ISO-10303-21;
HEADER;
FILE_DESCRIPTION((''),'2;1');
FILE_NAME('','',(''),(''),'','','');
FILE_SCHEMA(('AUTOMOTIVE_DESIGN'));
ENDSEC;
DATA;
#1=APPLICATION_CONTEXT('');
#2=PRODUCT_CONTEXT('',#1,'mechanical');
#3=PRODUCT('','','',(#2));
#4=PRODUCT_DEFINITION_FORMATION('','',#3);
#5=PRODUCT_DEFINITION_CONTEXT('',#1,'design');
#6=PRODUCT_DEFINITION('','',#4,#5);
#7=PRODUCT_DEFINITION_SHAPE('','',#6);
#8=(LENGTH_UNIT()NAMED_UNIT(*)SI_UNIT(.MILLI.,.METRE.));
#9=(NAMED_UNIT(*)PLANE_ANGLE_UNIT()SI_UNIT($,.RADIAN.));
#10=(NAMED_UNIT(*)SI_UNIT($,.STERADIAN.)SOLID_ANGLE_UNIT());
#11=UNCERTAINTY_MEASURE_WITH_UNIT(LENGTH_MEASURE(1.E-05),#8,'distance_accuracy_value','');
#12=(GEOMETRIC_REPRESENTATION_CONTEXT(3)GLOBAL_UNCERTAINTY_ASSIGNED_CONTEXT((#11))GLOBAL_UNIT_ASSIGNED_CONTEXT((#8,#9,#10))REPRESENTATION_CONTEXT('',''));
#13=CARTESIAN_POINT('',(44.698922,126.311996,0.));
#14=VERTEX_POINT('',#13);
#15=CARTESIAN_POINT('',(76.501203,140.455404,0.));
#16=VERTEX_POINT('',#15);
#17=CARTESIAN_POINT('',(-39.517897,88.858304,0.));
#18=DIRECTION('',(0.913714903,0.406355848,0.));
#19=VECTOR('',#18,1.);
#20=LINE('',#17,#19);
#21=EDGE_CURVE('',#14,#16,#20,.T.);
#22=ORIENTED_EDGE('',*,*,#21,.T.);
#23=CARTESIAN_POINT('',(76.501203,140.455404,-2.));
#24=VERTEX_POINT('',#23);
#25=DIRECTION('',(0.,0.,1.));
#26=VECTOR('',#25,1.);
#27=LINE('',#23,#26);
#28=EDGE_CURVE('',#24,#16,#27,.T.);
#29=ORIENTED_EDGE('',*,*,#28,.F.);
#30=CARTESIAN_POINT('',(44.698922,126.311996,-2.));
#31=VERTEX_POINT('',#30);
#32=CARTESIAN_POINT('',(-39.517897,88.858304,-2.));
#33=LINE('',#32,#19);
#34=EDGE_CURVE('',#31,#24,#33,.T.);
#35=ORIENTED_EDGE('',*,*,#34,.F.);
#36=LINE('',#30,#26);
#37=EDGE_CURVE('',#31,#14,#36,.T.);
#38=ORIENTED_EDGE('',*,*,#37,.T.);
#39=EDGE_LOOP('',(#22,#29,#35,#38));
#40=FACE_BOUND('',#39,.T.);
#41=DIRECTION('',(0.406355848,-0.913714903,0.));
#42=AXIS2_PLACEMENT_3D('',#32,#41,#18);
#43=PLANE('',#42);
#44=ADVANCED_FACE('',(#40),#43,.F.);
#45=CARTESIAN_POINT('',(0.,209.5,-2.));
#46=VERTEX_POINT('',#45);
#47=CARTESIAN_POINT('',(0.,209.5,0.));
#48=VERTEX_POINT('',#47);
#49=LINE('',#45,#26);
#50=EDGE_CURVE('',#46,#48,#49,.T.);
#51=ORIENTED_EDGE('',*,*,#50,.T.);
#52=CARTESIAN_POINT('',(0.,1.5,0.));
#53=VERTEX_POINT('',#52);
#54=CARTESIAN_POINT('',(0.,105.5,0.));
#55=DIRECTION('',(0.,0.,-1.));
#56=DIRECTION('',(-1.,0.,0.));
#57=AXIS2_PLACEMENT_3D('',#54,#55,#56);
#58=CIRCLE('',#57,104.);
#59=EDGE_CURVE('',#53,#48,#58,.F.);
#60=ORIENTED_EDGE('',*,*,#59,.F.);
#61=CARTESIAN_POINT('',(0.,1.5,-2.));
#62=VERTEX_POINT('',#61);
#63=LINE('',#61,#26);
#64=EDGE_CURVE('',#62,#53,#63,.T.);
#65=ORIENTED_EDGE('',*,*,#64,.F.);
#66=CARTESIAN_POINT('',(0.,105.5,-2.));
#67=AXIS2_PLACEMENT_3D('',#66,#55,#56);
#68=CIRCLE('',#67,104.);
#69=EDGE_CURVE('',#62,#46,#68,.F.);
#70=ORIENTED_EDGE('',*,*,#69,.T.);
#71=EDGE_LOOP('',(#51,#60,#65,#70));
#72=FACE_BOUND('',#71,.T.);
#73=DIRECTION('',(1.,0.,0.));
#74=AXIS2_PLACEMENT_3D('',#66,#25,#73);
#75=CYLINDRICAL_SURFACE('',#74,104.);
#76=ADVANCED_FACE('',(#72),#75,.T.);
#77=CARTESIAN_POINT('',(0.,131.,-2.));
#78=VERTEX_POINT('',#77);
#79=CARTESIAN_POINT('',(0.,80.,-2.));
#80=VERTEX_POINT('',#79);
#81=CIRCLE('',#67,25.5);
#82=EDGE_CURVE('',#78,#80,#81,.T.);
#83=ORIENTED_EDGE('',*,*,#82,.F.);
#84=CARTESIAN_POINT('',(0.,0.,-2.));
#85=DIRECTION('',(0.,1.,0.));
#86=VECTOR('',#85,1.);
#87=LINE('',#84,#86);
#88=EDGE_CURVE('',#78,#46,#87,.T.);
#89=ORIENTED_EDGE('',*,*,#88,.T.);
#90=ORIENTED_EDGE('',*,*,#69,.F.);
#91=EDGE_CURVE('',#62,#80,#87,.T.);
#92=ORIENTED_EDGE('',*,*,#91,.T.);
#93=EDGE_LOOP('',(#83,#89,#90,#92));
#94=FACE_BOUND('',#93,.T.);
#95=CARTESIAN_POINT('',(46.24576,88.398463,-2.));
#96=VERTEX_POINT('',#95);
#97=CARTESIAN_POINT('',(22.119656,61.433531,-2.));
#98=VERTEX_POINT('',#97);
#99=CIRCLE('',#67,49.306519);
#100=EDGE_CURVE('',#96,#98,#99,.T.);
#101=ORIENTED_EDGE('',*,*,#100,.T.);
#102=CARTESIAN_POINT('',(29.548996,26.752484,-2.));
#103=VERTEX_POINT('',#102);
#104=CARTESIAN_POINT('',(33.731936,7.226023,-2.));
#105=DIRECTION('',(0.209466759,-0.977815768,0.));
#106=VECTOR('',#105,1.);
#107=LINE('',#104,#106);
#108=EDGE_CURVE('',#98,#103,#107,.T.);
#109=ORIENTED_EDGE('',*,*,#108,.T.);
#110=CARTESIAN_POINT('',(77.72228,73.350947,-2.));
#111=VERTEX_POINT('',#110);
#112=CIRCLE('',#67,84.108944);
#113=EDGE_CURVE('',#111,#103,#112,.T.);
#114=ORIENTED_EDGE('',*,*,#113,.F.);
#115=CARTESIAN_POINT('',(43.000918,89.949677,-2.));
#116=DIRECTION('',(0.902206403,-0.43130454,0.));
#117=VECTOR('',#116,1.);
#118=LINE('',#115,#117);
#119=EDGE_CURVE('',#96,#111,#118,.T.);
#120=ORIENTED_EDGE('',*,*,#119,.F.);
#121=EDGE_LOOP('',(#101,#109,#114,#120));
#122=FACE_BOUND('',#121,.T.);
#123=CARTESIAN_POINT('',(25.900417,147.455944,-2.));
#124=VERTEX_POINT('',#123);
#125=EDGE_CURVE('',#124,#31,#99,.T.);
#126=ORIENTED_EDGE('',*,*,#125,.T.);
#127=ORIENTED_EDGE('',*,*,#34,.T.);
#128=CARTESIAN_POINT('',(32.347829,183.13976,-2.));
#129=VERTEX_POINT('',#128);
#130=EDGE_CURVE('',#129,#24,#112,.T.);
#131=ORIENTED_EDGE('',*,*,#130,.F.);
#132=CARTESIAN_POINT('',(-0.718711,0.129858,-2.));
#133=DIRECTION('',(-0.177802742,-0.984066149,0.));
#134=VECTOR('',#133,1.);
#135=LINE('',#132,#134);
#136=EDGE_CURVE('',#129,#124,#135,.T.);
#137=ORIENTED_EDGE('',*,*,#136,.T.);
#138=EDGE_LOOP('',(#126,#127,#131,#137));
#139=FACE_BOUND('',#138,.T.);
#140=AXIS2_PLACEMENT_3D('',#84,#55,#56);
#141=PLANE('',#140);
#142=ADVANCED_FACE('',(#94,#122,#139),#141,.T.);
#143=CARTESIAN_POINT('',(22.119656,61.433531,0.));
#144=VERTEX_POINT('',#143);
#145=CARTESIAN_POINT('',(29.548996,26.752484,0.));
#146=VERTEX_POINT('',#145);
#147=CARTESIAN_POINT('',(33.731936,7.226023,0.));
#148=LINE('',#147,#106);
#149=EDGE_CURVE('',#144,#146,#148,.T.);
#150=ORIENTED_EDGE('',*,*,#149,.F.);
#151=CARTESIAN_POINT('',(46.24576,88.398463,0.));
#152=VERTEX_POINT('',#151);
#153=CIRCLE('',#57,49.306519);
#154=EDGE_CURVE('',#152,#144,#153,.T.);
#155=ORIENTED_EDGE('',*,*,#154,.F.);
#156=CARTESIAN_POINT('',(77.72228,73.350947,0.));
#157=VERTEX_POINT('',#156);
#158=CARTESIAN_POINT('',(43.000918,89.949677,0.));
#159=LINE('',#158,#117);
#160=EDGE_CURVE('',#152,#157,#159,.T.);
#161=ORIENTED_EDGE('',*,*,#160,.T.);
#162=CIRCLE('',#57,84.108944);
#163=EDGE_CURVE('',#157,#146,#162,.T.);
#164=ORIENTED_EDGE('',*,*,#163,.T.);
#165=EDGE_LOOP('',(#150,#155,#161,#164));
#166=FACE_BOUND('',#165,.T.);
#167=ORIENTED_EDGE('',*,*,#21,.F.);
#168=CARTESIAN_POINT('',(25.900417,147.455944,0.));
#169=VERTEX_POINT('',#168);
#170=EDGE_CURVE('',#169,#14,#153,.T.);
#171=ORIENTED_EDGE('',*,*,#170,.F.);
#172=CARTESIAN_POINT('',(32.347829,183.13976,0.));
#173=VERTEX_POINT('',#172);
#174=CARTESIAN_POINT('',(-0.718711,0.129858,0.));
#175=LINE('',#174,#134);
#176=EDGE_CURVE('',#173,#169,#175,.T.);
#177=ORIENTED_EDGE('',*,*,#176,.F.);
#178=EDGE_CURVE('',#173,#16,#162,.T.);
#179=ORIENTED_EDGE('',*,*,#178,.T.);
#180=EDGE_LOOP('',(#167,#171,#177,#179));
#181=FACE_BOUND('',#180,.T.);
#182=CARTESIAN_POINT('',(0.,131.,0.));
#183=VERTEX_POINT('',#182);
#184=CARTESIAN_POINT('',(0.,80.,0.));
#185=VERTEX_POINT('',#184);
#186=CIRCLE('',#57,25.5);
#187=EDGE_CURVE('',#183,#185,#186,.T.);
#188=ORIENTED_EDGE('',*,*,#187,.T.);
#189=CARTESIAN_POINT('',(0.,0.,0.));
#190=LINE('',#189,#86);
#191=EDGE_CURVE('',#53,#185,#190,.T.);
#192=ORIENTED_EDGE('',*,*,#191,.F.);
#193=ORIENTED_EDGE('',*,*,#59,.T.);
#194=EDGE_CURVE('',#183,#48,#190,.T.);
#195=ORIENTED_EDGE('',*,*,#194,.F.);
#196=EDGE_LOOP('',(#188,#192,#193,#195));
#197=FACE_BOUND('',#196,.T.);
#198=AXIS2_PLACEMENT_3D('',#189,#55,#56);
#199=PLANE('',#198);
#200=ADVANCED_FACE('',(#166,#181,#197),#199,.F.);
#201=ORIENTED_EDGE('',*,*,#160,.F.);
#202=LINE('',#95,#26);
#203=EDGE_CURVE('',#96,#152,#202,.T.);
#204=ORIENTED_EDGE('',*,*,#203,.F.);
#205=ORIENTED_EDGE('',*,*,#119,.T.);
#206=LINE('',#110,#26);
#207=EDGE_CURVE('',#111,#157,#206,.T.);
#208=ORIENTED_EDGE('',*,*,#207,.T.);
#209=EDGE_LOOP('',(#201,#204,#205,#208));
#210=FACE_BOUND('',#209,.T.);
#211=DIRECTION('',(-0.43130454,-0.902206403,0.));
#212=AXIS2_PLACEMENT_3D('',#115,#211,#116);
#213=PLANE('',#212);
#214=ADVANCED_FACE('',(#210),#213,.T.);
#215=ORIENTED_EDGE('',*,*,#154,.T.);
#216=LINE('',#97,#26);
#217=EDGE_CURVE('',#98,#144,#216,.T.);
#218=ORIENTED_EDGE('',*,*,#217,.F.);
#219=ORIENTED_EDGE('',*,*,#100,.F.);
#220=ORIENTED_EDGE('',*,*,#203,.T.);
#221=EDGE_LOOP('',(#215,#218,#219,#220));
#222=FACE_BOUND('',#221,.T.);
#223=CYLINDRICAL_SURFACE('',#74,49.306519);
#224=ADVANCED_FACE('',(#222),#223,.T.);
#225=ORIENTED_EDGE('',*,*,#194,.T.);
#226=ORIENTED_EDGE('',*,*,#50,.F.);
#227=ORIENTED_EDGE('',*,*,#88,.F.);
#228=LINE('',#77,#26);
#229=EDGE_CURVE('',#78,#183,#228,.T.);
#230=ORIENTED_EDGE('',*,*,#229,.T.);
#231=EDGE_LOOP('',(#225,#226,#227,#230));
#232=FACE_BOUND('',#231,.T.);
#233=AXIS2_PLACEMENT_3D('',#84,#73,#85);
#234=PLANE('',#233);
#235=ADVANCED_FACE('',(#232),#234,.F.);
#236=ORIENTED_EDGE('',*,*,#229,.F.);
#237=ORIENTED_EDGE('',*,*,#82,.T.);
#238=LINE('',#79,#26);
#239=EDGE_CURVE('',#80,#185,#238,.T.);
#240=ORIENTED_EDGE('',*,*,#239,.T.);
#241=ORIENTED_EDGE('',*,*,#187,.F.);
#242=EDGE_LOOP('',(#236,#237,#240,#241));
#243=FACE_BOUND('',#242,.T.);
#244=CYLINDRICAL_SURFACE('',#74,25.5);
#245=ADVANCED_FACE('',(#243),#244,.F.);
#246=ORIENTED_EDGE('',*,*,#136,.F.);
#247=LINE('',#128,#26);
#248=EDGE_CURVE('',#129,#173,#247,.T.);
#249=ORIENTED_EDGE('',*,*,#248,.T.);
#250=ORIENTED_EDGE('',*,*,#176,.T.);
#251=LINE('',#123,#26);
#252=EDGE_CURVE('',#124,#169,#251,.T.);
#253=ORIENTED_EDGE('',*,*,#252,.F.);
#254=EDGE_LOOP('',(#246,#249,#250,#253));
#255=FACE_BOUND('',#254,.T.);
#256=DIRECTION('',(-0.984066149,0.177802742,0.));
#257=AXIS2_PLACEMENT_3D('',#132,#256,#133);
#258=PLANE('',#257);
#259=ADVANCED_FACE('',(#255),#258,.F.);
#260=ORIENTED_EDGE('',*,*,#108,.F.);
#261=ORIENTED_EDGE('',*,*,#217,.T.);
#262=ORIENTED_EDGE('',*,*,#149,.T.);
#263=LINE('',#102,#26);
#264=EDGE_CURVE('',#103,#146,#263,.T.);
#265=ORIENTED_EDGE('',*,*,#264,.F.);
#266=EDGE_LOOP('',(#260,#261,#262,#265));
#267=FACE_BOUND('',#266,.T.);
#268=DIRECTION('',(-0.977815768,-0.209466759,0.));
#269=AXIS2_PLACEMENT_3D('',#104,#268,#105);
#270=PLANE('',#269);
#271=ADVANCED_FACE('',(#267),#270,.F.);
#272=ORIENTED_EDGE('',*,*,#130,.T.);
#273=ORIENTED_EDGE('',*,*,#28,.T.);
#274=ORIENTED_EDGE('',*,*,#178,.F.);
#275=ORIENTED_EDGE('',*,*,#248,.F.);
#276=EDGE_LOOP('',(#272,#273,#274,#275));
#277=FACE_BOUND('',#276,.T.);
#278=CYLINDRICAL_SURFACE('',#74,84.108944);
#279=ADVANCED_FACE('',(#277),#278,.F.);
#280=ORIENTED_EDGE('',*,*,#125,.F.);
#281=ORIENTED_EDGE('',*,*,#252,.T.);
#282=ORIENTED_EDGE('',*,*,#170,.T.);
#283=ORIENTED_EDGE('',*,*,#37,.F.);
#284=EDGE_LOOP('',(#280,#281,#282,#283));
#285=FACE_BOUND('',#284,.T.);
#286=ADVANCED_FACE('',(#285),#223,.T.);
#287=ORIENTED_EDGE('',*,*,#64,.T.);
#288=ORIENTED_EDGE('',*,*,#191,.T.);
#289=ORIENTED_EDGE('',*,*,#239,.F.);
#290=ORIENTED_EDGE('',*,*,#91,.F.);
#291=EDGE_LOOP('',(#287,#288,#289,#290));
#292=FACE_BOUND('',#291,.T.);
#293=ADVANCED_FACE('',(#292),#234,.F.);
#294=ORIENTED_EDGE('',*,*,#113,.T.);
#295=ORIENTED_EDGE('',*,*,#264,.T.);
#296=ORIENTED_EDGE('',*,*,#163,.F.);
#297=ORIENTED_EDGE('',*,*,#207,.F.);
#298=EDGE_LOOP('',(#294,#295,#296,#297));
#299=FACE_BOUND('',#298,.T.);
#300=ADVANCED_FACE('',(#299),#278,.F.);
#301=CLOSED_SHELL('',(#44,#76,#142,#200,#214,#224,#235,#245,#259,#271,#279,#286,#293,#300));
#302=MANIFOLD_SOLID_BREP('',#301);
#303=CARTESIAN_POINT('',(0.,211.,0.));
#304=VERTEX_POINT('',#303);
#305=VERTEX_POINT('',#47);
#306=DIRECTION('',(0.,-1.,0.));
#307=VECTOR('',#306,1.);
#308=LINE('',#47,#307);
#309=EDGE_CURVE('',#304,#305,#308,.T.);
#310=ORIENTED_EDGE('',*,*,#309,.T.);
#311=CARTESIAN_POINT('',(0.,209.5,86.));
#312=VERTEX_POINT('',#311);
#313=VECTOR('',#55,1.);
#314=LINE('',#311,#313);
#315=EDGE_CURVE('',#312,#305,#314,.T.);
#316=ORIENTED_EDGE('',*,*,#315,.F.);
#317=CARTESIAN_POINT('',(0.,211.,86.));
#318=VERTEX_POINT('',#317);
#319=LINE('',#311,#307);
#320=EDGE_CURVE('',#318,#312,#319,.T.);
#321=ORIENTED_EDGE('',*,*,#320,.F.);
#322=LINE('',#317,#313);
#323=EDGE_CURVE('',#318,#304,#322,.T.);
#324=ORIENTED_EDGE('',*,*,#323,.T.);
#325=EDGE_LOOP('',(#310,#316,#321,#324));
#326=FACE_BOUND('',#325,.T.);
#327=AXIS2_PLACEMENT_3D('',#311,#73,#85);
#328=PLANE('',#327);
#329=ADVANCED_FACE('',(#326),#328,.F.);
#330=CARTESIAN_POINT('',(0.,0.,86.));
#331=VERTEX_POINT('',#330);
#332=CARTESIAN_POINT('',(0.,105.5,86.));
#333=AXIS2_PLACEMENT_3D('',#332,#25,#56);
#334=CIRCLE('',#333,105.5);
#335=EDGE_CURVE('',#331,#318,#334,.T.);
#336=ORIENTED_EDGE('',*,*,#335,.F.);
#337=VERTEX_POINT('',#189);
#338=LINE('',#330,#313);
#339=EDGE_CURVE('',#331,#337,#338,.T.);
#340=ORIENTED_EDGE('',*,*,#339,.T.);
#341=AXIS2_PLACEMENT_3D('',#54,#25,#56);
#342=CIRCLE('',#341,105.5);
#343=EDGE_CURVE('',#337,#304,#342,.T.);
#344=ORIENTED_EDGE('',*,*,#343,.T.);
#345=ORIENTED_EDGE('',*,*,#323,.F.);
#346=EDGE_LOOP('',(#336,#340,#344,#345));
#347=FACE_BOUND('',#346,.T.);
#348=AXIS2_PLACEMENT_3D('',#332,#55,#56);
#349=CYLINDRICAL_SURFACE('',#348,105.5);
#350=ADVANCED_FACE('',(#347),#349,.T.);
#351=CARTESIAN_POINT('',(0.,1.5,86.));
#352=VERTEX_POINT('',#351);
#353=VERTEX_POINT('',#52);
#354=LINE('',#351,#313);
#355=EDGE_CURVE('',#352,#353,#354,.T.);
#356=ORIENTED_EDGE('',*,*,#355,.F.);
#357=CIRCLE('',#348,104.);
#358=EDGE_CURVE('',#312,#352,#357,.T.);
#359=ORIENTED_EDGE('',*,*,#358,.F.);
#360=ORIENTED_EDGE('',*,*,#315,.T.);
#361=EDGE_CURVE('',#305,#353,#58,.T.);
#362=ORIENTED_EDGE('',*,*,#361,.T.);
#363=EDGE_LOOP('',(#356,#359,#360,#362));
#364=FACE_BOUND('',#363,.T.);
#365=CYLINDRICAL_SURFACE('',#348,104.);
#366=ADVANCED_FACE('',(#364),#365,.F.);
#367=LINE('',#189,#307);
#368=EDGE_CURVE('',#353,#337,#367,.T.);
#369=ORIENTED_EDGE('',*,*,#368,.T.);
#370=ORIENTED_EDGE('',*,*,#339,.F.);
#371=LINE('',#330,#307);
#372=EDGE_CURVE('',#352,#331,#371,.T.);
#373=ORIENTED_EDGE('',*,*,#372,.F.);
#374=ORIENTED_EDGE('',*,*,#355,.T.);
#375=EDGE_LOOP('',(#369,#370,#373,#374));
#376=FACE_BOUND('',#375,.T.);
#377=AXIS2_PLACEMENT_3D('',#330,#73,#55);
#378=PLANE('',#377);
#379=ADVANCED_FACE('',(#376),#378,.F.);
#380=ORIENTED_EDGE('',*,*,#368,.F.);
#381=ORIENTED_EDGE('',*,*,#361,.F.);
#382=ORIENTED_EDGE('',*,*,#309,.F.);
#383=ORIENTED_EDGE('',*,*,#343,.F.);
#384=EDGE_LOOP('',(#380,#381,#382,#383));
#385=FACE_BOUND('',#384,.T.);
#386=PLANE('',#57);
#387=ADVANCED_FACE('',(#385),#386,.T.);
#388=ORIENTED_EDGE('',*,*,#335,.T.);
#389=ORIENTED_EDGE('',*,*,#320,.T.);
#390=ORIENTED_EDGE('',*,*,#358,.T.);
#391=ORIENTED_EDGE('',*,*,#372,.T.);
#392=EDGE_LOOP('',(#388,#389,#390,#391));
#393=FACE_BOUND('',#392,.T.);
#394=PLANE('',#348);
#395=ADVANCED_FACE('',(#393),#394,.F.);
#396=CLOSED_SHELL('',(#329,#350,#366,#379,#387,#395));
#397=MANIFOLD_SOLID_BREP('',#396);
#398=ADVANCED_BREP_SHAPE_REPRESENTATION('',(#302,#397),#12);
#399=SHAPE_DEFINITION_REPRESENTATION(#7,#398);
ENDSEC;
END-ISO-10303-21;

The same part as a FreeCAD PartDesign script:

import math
import FreeCAD as App
import Part
import Sketcher
from FreeCAD import Vector

doc = App.newDocument("Part")
body = doc.addObject("PartDesign::Body", "Body")

sketch1 = body.newObject("Sketcher::SketchObject", "Sketch")
sketch1.AttachmentSupport = (doc.getObject("XY_Plane"), [""])
sketch1.MapMode = "FlatFace"
sketch1.addGeometry(Part.LineSegment(Vector(0, 1.5, 0), Vector(0, 0, 0)), False)
sketch1.addGeometry(Part.ArcOfCircle(Part.Circle(Vector(0, 105.5, 0), Vector(0, 0, 1), 105.5), math.radians(-90), math.radians(90)), False)
sketch1.addGeometry(Part.LineSegment(Vector(0, 211, 0), Vector(0, 209.5, 0)), False)
sketch1.addGeometry(Part.ArcOfCircle(Part.Circle(Vector(0, 105.5, 0), Vector(0, 0, 1), 104), math.radians(-90), math.radians(90)), False)
sketch1.addConstraint(Sketcher.Constraint("Coincident", 0, 2, 1, 1))
sketch1.addConstraint(Sketcher.Constraint("Coincident", 1, 2, 2, 1))
sketch1.addConstraint(Sketcher.Constraint("Coincident", 2, 2, 3, 2))
sketch1.addConstraint(Sketcher.Constraint("Coincident", 3, 1, 0, 1))
sketch1.addConstraint(Sketcher.Constraint("Vertical", 0))
sketch1.addConstraint(Sketcher.Constraint("Vertical", 2))
sketch1.addConstraint(Sketcher.Constraint("Coincident", 0, 2, -1, 1))
sketch1.addConstraint(Sketcher.Constraint("Coincident", 3, 3, 1, 3))
sketch1.addConstraint(Sketcher.Constraint("PointOnObject", 1, 3, -2))
sketch1.addConstraint(Sketcher.Constraint("PointOnObject", 1, 2, -2))
sketch1.addConstraint(Sketcher.Constraint("Radius", 3, 104.0))
sketch1.addConstraint(Sketcher.Constraint("Radius", 1, 105.5))
pad1 = body.newObject("PartDesign::Pad", "Pad")
pad1.Profile = sketch1
pad1.Length = 86
body2 = doc.addObject("PartDesign::Body", "Body001")

sketch2 = body2.newObject("Sketcher::SketchObject", "Sketch001")
sketch2.AttachmentSupport = (doc.getObject("XY_Plane001"), [""])
sketch2.MapMode = "FlatFace"
sketch2.addGeometry(Part.ArcOfCircle(Part.Circle(Vector(0, 106, 0), Vector(0, 0, 1), 104), math.radians(-90), math.radians(90)), False)
sketch2.addGeometry(Part.LineSegment(Vector(0, 2, 0), Vector(0, 80, 0)), False)
sketch2.addGeometry(Part.ArcOfCircle(Part.Circle(Vector(0, 106, 0), Vector(0, 0, 1), 26), math.radians(-90), math.radians(90)), False)
sketch2.addGeometry(Part.LineSegment(Vector(0, 131, 0), Vector(0, 210, 0)), False)
sketch2.addGeometry(Part.LineSegment(Vector(78, 73, 0), Vector(46, 88, 0)), False)
sketch2.addGeometry(Part.ArcOfCircle(Part.Circle(Vector(0, 106, 0), Vector(0, 0, 1), 49), math.radians(-63), math.radians(-20)), False)
sketch2.addGeometry(Part.LineSegment(Vector(22, 61, 0), Vector(30, 27, 0)), False)
sketch2.addGeometry(Part.ArcOfCircle(Part.Circle(Vector(0, 106, 0), Vector(0, 0, 1), 84), math.radians(-69), math.radians(-22)), False)
sketch2.addGeometry(Part.LineSegment(Vector(45, 126, 0), Vector(77, 140, 0)), False)
sketch2.addGeometry(Part.ArcOfCircle(Part.Circle(Vector(0, 106, 0), Vector(0, 0, 1), 84), math.radians(25), math.radians(67)), False)
sketch2.addGeometry(Part.LineSegment(Vector(32, 183, 0), Vector(26, 147, 0)), False)
sketch2.addGeometry(Part.ArcOfCircle(Part.Circle(Vector(0, 106, 0), Vector(0, 0, 1), 49), math.radians(25), math.radians(58)), False)
sketch2.addConstraint(Sketcher.Constraint("Coincident", 0, 1, 1, 1))
sketch2.addConstraint(Sketcher.Constraint("Coincident", 1, 2, 2, 1))
sketch2.addConstraint(Sketcher.Constraint("Coincident", 2, 2, 3, 1))
sketch2.addConstraint(Sketcher.Constraint("Coincident", 3, 2, 0, 2))
sketch2.addConstraint(Sketcher.Constraint("Coincident", 4, 2, 5, 2))
sketch2.addConstraint(Sketcher.Constraint("Coincident", 5, 1, 6, 1))
sketch2.addConstraint(Sketcher.Constraint("Coincident", 6, 2, 7, 1))
sketch2.addConstraint(Sketcher.Constraint("Coincident", 7, 2, 4, 1))
sketch2.addConstraint(Sketcher.Constraint("Coincident", 8, 2, 9, 1))
sketch2.addConstraint(Sketcher.Constraint("Coincident", 9, 2, 10, 1))
sketch2.addConstraint(Sketcher.Constraint("Coincident", 10, 2, 11, 2))
sketch2.addConstraint(Sketcher.Constraint("Coincident", 11, 1, 8, 1))
sketch2.addConstraint(Sketcher.Constraint("Vertical", 1))
sketch2.addConstraint(Sketcher.Constraint("Vertical", 3))
sketch2.addConstraint(Sketcher.Constraint("Coincident", 2, 3, 0, 3))
sketch2.addConstraint(Sketcher.Constraint("Coincident", 5, 3, 0, 3))
sketch2.addConstraint(Sketcher.Constraint("Coincident", 7, 3, 0, 3))
sketch2.addConstraint(Sketcher.Constraint("Coincident", 9, 3, 0, 3))
sketch2.addConstraint(Sketcher.Constraint("Coincident", 11, 3, 0, 3))
sketch2.addConstraint(Sketcher.Constraint("Equal", 7, 9))
sketch2.addConstraint(Sketcher.Constraint("Equal", 5, 11))
sketch2.addConstraint(Sketcher.Constraint("PointOnObject", 0, 3, -2))
sketch2.addConstraint(Sketcher.Constraint("PointOnObject", 0, 1, -2))
sketch2.addConstraint(Sketcher.Constraint("PointOnObject", 2, 2, -2))
sketch2.addConstraint(Sketcher.Constraint("Radius", 0, 104.0))
sketch2.addConstraint(Sketcher.Constraint("Radius", 2, 25.5))
sketch2.addConstraint(Sketcher.Constraint("DistanceY", -1, 1, 1, 2, 80.0))
sketch2.addConstraint(Sketcher.Constraint("Radius", 5, 49.306519))
sketch2.addConstraint(Sketcher.Constraint("Radius", 7, 84.108944))
sketch2.addConstraint(Sketcher.Constraint("Distance", 4, 34.88838))
sketch2.addConstraint(Sketcher.Constraint("DistanceX", -1, 1, 4, 2, 46.24576))
sketch2.addConstraint(Sketcher.Constraint("DistanceY", -1, 1, 5, 1, 61.433531))
sketch2.addConstraint(Sketcher.Constraint("DistanceX", -1, 1, 9, 2, 32.347829))
sketch2.addConstraint(Sketcher.Constraint("DistanceX", 5, 1, 6, 2, 7.429341))
sketch2.addConstraint(Sketcher.Constraint("DistanceY", 4, 2, 8, 2, 52.056941))
sketch2.addConstraint(Sketcher.Constraint("DistanceY", 11, 1, 10, 2, 21.143948))
sketch2.addConstraint(Sketcher.Constraint("DistanceX", 11, 1, 8, 2, 31.802281))
pad2 = body2.newObject("PartDesign::Pad", "Pad001")
pad2.Profile = sketch2
pad2.Length = 2
pad2.Reversed = True

doc.recompute()
